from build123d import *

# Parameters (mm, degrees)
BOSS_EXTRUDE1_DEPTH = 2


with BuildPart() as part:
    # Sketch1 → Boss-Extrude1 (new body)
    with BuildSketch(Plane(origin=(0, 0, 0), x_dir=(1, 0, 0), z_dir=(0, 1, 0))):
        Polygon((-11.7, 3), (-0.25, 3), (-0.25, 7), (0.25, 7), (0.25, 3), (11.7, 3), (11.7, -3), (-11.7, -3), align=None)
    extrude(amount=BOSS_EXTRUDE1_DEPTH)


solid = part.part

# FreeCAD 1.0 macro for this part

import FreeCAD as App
import Part
import Sketcher

V = App.Vector
Q = App.Units.Quantity


def add_polygon(sketch, points):
    """Adds a closed chain of lines whose ends are joined by coincident constraints."""
    first, n = sketch.GeometryCount, len(points)
    for a, b in zip(points, points[1:] + points[:1]):
        sketch.addGeometry(Part.LineSegment(App.Vector(*a, 0), App.Vector(*b, 0)), False)
    for i in range(n):
        sketch.addConstraint(Sketcher.Constraint("Coincident", first + i, 2, first + (i + 1) % n, 1))

doc = App.newDocument("Part")
body = doc.addObject("PartDesign::Body", "Body")

# Sketch on XZ plane
sketch1 = body.newObject("Sketcher::SketchObject", "Sketch")
sketch1.AttachmentSupport = (doc.getObject("XZ_Plane"), [""])
sketch1.MapMode = "FlatFace"
add_polygon(sketch1, [(-0.25, -3), (-11.7, -3), (-11.7, 3), (11.7, 3), (11.7, -3), (0.25, -3), (0.25, -7), (-0.25, -7)])  # lines 0-7
sketch1.addConstraint([
    Sketcher.Constraint("Horizontal", 0),
    Sketcher.Constraint("Vertical", 1),
    Sketcher.Constraint("Horizontal", 2),
    Sketcher.Constraint("Vertical", 3),
    Sketcher.Constraint("Horizontal", 4),
    Sketcher.Constraint("Vertical", 5),
    Sketcher.Constraint("Horizontal", 6),
    Sketcher.Constraint("Vertical", 7),
    Sketcher.Constraint("Symmetric", 0, 2, 2, 2, -1, 1),
    Sketcher.Constraint("Symmetric", 4, 2, 7, 2, -2),
    Sketcher.Constraint("DistanceY", 1, 1, 1, 2, Q("6 mm")),
    Sketcher.Constraint("DistanceY", 5, 2, 5, 1, Q("4 mm")),
    Sketcher.Constraint("DistanceX", 2, 1, 2, 2, Q("23.4 mm")),
    Sketcher.Constraint("DistanceX", 6, 2, 6, 1, Q("0.5 mm")),
])
pad1 = body.newObject("PartDesign::Pad", "Pad")
pad1.Profile = sketch1
pad1.Length = 2
pad1.Reversed = True

doc.recompute()
